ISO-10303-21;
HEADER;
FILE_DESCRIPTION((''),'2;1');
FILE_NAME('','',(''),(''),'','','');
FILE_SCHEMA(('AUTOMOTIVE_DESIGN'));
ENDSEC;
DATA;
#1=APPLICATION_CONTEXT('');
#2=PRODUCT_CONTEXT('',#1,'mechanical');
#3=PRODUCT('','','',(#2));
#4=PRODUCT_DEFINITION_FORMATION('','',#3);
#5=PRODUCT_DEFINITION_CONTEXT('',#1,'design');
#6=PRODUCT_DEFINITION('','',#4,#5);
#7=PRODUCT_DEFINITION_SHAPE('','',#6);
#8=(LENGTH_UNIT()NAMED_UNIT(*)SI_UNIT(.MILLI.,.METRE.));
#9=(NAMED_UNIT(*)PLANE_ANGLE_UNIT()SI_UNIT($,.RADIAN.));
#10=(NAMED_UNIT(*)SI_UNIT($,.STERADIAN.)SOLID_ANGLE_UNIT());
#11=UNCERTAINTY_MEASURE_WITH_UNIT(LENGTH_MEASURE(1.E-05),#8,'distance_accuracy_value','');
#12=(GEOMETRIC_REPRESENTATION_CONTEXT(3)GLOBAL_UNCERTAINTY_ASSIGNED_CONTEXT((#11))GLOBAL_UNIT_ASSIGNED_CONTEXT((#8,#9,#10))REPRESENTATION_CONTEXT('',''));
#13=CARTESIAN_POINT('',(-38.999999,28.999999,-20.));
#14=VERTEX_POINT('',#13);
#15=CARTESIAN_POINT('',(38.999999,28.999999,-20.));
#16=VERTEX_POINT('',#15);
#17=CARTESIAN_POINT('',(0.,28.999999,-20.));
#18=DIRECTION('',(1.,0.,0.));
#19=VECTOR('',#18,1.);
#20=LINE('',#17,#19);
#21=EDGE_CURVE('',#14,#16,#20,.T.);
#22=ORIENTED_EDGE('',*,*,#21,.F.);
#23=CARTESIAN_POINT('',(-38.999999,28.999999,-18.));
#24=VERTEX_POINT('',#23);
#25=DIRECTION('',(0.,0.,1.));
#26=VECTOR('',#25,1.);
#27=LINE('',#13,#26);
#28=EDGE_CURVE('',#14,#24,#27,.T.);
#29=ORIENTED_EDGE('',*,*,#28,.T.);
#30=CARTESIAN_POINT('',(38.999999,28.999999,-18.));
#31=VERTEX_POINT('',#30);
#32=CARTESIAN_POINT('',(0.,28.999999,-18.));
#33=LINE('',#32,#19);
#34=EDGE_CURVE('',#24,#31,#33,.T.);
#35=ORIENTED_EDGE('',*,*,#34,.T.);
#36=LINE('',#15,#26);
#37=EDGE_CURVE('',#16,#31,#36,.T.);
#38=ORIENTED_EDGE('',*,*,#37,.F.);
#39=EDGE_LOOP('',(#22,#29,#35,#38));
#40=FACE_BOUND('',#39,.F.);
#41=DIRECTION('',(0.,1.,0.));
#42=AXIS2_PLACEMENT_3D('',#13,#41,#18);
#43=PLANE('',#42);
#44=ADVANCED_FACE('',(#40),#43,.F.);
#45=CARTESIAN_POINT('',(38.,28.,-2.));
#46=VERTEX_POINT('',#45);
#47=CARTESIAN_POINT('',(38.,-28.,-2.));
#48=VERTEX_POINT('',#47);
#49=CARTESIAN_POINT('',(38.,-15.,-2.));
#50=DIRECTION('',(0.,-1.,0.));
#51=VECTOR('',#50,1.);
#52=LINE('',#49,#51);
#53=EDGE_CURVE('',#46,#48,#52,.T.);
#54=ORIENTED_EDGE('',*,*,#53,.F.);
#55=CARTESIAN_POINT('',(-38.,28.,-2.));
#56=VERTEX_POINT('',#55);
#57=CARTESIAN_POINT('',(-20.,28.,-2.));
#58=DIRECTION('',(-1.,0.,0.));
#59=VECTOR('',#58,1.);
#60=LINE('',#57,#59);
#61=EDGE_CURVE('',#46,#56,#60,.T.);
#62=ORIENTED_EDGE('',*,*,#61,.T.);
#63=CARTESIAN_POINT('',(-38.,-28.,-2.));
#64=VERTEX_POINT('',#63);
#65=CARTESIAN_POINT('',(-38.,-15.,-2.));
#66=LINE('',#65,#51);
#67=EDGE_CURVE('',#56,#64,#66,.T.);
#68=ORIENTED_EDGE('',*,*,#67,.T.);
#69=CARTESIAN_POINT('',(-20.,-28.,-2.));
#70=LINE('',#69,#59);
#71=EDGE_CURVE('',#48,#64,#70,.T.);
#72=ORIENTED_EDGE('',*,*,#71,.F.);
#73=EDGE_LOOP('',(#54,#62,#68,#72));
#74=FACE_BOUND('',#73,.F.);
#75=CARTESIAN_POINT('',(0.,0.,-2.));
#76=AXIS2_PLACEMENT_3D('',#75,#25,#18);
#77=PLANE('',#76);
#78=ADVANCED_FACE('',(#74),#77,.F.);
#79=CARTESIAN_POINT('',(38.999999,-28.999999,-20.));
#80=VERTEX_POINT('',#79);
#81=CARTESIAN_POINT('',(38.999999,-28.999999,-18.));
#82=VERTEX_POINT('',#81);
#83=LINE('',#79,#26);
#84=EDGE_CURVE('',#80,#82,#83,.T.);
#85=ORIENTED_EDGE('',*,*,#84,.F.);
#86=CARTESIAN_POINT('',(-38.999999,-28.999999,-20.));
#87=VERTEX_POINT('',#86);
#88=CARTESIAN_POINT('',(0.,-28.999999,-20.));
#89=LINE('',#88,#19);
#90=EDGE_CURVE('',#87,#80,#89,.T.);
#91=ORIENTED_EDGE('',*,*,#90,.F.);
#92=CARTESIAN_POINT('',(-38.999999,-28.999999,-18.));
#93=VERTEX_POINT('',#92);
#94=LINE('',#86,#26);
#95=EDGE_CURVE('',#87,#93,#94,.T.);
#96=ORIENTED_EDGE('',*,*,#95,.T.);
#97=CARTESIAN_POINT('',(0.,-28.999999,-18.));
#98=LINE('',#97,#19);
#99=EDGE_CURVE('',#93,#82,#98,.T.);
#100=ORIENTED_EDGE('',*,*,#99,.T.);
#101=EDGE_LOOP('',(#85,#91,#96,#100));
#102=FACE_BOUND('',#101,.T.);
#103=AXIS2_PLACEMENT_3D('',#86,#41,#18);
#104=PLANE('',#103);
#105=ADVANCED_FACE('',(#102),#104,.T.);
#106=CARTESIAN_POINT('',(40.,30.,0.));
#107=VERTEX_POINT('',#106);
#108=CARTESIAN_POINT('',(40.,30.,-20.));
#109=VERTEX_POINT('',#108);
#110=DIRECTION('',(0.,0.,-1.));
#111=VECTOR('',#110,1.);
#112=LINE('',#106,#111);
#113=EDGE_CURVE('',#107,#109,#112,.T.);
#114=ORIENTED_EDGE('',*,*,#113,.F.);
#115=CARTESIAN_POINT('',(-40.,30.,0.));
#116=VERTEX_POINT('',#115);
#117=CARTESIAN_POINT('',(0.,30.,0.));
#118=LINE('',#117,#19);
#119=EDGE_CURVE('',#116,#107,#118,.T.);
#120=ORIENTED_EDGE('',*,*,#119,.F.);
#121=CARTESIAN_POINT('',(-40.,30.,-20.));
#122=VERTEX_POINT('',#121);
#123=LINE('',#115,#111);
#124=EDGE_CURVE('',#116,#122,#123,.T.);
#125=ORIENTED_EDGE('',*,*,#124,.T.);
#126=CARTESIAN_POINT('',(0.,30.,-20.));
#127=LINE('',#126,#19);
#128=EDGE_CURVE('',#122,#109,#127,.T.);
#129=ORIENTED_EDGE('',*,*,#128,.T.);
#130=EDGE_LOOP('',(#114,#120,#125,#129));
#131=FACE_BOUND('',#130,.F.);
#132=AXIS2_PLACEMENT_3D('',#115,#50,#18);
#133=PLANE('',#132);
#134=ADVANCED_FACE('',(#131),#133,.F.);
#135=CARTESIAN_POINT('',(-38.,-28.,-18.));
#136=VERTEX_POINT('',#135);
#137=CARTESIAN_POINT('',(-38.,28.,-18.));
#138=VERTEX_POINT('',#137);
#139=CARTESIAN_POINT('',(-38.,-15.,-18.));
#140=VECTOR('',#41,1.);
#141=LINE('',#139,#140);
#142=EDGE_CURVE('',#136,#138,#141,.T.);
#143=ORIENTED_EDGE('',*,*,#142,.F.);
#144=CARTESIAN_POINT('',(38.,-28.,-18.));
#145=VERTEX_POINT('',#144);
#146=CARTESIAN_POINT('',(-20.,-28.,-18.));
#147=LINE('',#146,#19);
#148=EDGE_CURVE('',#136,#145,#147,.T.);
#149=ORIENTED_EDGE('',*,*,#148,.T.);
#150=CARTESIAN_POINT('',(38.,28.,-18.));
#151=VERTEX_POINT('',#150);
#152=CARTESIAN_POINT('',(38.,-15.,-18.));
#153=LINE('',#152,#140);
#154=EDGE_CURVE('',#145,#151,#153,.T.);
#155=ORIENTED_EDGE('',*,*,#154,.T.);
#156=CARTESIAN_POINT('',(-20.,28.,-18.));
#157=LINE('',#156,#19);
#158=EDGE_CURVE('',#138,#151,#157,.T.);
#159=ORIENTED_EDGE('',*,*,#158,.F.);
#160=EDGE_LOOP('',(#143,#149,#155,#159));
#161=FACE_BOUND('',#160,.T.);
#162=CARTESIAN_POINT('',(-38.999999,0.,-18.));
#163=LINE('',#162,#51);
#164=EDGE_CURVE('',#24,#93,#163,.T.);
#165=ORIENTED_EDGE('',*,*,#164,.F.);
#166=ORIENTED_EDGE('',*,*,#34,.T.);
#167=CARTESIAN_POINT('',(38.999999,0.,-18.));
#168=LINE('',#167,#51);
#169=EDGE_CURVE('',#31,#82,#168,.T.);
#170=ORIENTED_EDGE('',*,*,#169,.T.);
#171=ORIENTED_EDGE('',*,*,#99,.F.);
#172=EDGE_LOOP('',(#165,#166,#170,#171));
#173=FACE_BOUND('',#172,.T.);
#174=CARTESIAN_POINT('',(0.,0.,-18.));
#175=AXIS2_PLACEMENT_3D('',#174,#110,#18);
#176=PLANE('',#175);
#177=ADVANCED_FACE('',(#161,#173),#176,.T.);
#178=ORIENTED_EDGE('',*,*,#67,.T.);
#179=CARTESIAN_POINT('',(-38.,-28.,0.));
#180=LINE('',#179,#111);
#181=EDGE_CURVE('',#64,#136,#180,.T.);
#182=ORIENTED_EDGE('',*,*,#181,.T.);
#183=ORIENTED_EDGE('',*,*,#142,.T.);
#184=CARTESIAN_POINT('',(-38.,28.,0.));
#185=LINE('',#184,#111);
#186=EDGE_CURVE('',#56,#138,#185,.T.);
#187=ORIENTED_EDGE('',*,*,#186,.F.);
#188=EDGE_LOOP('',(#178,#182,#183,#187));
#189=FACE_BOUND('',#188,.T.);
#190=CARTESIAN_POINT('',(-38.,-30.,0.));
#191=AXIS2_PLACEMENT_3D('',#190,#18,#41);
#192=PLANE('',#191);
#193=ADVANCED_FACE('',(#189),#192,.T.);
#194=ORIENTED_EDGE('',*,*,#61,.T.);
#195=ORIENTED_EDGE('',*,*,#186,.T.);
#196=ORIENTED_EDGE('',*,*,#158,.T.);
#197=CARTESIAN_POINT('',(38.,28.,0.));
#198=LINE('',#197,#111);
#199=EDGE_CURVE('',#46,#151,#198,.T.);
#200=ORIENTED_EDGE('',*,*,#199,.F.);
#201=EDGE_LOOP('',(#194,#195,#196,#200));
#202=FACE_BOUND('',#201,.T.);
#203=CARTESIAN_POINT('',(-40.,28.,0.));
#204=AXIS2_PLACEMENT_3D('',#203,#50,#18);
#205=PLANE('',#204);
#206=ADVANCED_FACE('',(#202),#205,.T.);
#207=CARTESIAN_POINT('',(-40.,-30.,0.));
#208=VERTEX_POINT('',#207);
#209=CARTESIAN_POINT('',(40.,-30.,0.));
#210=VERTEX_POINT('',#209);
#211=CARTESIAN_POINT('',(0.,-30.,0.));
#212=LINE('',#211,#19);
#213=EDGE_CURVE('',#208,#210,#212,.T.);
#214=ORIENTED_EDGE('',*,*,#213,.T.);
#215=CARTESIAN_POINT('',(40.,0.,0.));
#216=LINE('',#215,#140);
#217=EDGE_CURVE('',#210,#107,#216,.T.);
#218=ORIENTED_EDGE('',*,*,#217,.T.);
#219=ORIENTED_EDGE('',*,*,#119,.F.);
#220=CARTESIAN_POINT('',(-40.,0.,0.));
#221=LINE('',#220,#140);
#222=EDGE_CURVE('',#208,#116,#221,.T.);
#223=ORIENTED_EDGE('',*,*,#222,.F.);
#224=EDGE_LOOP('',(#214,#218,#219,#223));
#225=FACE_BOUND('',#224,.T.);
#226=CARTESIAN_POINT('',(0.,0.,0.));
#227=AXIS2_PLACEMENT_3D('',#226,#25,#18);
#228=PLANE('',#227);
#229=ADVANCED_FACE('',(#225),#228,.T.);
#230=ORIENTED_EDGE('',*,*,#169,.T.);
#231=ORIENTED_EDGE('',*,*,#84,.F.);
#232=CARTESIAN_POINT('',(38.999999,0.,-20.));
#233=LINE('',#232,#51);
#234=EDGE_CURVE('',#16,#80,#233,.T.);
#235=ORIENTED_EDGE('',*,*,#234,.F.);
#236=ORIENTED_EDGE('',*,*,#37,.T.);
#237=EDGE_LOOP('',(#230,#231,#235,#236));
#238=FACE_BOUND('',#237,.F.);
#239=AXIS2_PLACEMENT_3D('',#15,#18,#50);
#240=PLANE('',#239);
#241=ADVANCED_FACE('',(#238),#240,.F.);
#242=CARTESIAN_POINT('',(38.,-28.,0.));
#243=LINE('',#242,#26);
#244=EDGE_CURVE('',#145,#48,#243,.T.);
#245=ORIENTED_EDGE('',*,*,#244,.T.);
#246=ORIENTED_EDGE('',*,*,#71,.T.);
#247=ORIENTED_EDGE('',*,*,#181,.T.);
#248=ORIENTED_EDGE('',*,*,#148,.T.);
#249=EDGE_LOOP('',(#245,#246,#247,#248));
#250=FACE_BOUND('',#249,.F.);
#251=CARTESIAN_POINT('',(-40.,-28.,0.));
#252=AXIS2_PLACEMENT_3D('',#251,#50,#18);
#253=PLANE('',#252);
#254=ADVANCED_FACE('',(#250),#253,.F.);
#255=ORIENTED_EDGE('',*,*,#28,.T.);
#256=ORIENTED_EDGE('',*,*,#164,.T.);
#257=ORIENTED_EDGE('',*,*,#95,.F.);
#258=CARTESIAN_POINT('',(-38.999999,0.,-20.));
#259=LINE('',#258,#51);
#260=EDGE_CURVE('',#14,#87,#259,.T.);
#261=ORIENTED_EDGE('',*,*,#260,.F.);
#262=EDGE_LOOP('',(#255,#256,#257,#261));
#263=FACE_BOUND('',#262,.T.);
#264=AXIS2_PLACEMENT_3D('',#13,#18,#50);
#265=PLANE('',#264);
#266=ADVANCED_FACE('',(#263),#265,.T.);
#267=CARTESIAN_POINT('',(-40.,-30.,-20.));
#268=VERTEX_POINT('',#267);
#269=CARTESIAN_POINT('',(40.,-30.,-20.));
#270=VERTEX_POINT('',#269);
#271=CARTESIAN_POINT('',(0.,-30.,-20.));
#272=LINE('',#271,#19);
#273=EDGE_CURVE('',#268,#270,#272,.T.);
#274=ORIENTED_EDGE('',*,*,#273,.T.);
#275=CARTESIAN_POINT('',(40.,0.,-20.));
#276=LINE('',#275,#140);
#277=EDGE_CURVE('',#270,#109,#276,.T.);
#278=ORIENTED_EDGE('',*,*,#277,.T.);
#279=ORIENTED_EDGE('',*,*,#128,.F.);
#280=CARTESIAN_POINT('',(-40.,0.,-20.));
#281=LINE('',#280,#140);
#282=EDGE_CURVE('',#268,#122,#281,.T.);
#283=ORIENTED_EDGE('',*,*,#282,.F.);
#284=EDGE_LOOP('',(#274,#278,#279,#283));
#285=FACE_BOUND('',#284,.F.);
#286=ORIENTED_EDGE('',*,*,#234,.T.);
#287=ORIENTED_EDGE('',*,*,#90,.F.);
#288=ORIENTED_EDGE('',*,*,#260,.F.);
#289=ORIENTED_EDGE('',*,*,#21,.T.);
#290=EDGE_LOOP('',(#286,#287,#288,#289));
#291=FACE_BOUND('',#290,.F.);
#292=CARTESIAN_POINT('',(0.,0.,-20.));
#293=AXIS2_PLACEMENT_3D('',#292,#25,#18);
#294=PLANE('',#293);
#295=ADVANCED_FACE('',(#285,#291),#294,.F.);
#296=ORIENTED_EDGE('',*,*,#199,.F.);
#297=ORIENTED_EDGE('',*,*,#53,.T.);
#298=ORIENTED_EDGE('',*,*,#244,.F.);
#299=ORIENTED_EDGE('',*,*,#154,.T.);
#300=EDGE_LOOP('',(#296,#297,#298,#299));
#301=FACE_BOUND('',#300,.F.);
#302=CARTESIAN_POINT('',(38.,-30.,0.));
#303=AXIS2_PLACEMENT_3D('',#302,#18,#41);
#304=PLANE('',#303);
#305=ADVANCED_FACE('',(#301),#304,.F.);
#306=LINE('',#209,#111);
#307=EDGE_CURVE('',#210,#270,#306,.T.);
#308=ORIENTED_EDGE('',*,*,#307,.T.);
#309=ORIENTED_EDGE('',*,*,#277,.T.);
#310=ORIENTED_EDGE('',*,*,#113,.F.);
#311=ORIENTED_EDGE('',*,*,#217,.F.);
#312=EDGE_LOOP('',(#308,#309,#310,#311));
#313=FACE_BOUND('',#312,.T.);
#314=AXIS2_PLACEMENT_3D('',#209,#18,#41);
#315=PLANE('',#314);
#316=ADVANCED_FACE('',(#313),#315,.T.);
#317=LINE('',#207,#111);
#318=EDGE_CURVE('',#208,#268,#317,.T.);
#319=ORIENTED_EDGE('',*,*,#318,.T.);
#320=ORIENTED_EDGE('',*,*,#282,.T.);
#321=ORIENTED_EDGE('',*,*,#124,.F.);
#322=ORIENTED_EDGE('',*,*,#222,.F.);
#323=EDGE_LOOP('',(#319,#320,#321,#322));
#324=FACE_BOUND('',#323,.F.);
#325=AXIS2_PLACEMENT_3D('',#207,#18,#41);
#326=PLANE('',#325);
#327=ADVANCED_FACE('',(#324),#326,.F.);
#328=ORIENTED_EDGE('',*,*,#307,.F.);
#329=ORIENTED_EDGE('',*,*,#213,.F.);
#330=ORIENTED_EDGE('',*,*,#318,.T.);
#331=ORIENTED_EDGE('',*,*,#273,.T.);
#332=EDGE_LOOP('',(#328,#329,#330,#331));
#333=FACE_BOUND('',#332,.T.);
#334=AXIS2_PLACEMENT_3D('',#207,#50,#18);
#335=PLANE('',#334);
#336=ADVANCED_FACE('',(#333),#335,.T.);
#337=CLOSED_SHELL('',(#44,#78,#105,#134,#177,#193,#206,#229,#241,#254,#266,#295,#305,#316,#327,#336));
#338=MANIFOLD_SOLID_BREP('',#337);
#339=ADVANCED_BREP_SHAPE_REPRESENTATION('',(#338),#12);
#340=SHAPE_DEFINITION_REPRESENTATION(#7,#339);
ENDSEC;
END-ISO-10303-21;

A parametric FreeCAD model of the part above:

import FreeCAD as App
import Part
import Sketcher
Q = App.Units.Quantity


def faces_at(feature, points):
    """Names of the faces that lie closest to the given points."""
    faces = feature.Shape.Faces
    near = lambda p: min(range(len(faces)), key=lambda i: faces[i].distToShape(Part.Vertex(*p))[0])
    return sorted({f"Face{near(p) + 1}" for p in points})

doc = App.newDocument("Part")
body = doc.addObject("PartDesign::Body", "Body")

# Sketch on XY plane
sketch1 = body.newObject("Sketcher::SketchObject", "Sketch")
sketch1.AttachmentSupport = (doc.getObject("XY_Plane"), [""])
sketch1.MapMode = "FlatFace"
sketch1.addGeometry([
    Part.LineSegment(App.Vector(-40, 30, 0), App.Vector(-40, -30, 0)),
    Part.LineSegment(App.Vector(-40, -30, 0), App.Vector(40, -30, 0)),
    Part.LineSegment(App.Vector(40, -30, 0), App.Vector(40, 30, 0)),
    Part.LineSegment(App.Vector(40, 30, 0), App.Vector(-40, 30, 0)),
], False)
sketch1.addConstraint([
    Sketcher.Constraint("Coincident", 0, 2, 1, 1),
    Sketcher.Constraint("Coincident", 1, 2, 2, 1),
    Sketcher.Constraint("Coincident", 2, 2, 3, 1),
    Sketcher.Constraint("Coincident", 3, 2, 0, 1),
    Sketcher.Constraint("Vertical", 0),
    Sketcher.Constraint("Horizontal", 1),
    Sketcher.Constraint("Vertical", 2),
    Sketcher.Constraint("Horizontal", 3),
    Sketcher.Constraint("Symmetric", 0, 2, 2, 2, -1, 1),
    Sketcher.Constraint("DistanceX", 1, 1, 1, 2, Q("80 mm")),
    Sketcher.Constraint("DistanceY", 0, 2, 0, 1, Q("60 mm")),
])
pad1 = body.newObject("PartDesign::Pad", "Pad")
pad1.Profile = sketch1
pad1.Length = 20
pad1.Reversed = True
doc.recompute()

thickness = body.newObject("PartDesign::Thickness", "Thickness")
thickness.Base = (pad1, faces_at(pad1, [(0, 0, -20)]))
thickness.Value = 2
thickness.Reversed = True
thickness.Join = "Arc"

# Sketch on XY plane
sketch2 = body.newObject("Sketcher::SketchObject", "Sketch001")
sketch2.AttachmentSupport = (doc.getObject("XY_Plane"), [""])
sketch2.MapMode = "FlatFace"
sketch2.AttachmentOffset = App.Placement(App.Vector(0, 0, -20), App.Rotation())
sketch2.addGeometry([
    Part.LineSegment(App.Vector(-38.999999, -28.999999, 0), App.Vector(-38.999999, 28.999999, 0)),
    Part.LineSegment(App.Vector(-38.999999, 28.999999, 0), App.Vector(38.999999, 28.999999, 0)),
    Part.LineSegment(App.Vector(38.999999, 28.999999, 0), App.Vector(38.999999, -28.999999, 0)),
    Part.LineSegment(App.Vector(38.999999, -28.999999, 0), App.Vector(-38.999999, -28.999999, 0)),
], False)
sketch2.addConstraint([
    Sketcher.Constraint("Coincident", 0, 2, 1, 1),
    Sketcher.Constraint("Coincident", 1, 2, 2, 1),
    Sketcher.Constraint("Coincident", 2, 2, 3, 1),
    Sketcher.Constraint("Coincident", 3, 2, 0, 1),
    Sketcher.Constraint("Vertical", 0),
    Sketcher.Constraint("Horizontal", 1),
    Sketcher.Constraint("Vertical", 2),
    Sketcher.Constraint("Horizontal", 3),
    Sketcher.Constraint("Symmetric", 0, 2, 2, 2, -1, 1),
    Sketcher.Constraint("DistanceX", 1, 1, 1, 2, Q("77.999998 mm")),
    Sketcher.Constraint("DistanceY", -1, 1, 0, 2, Q("28.999999 mm")),
])
pocket1 = body.newObject("PartDesign::Pocket", "Pocket")
pocket1.Profile = sketch2
pocket1.Length = 2
pocket1.Reversed = True

doc.recompute()
